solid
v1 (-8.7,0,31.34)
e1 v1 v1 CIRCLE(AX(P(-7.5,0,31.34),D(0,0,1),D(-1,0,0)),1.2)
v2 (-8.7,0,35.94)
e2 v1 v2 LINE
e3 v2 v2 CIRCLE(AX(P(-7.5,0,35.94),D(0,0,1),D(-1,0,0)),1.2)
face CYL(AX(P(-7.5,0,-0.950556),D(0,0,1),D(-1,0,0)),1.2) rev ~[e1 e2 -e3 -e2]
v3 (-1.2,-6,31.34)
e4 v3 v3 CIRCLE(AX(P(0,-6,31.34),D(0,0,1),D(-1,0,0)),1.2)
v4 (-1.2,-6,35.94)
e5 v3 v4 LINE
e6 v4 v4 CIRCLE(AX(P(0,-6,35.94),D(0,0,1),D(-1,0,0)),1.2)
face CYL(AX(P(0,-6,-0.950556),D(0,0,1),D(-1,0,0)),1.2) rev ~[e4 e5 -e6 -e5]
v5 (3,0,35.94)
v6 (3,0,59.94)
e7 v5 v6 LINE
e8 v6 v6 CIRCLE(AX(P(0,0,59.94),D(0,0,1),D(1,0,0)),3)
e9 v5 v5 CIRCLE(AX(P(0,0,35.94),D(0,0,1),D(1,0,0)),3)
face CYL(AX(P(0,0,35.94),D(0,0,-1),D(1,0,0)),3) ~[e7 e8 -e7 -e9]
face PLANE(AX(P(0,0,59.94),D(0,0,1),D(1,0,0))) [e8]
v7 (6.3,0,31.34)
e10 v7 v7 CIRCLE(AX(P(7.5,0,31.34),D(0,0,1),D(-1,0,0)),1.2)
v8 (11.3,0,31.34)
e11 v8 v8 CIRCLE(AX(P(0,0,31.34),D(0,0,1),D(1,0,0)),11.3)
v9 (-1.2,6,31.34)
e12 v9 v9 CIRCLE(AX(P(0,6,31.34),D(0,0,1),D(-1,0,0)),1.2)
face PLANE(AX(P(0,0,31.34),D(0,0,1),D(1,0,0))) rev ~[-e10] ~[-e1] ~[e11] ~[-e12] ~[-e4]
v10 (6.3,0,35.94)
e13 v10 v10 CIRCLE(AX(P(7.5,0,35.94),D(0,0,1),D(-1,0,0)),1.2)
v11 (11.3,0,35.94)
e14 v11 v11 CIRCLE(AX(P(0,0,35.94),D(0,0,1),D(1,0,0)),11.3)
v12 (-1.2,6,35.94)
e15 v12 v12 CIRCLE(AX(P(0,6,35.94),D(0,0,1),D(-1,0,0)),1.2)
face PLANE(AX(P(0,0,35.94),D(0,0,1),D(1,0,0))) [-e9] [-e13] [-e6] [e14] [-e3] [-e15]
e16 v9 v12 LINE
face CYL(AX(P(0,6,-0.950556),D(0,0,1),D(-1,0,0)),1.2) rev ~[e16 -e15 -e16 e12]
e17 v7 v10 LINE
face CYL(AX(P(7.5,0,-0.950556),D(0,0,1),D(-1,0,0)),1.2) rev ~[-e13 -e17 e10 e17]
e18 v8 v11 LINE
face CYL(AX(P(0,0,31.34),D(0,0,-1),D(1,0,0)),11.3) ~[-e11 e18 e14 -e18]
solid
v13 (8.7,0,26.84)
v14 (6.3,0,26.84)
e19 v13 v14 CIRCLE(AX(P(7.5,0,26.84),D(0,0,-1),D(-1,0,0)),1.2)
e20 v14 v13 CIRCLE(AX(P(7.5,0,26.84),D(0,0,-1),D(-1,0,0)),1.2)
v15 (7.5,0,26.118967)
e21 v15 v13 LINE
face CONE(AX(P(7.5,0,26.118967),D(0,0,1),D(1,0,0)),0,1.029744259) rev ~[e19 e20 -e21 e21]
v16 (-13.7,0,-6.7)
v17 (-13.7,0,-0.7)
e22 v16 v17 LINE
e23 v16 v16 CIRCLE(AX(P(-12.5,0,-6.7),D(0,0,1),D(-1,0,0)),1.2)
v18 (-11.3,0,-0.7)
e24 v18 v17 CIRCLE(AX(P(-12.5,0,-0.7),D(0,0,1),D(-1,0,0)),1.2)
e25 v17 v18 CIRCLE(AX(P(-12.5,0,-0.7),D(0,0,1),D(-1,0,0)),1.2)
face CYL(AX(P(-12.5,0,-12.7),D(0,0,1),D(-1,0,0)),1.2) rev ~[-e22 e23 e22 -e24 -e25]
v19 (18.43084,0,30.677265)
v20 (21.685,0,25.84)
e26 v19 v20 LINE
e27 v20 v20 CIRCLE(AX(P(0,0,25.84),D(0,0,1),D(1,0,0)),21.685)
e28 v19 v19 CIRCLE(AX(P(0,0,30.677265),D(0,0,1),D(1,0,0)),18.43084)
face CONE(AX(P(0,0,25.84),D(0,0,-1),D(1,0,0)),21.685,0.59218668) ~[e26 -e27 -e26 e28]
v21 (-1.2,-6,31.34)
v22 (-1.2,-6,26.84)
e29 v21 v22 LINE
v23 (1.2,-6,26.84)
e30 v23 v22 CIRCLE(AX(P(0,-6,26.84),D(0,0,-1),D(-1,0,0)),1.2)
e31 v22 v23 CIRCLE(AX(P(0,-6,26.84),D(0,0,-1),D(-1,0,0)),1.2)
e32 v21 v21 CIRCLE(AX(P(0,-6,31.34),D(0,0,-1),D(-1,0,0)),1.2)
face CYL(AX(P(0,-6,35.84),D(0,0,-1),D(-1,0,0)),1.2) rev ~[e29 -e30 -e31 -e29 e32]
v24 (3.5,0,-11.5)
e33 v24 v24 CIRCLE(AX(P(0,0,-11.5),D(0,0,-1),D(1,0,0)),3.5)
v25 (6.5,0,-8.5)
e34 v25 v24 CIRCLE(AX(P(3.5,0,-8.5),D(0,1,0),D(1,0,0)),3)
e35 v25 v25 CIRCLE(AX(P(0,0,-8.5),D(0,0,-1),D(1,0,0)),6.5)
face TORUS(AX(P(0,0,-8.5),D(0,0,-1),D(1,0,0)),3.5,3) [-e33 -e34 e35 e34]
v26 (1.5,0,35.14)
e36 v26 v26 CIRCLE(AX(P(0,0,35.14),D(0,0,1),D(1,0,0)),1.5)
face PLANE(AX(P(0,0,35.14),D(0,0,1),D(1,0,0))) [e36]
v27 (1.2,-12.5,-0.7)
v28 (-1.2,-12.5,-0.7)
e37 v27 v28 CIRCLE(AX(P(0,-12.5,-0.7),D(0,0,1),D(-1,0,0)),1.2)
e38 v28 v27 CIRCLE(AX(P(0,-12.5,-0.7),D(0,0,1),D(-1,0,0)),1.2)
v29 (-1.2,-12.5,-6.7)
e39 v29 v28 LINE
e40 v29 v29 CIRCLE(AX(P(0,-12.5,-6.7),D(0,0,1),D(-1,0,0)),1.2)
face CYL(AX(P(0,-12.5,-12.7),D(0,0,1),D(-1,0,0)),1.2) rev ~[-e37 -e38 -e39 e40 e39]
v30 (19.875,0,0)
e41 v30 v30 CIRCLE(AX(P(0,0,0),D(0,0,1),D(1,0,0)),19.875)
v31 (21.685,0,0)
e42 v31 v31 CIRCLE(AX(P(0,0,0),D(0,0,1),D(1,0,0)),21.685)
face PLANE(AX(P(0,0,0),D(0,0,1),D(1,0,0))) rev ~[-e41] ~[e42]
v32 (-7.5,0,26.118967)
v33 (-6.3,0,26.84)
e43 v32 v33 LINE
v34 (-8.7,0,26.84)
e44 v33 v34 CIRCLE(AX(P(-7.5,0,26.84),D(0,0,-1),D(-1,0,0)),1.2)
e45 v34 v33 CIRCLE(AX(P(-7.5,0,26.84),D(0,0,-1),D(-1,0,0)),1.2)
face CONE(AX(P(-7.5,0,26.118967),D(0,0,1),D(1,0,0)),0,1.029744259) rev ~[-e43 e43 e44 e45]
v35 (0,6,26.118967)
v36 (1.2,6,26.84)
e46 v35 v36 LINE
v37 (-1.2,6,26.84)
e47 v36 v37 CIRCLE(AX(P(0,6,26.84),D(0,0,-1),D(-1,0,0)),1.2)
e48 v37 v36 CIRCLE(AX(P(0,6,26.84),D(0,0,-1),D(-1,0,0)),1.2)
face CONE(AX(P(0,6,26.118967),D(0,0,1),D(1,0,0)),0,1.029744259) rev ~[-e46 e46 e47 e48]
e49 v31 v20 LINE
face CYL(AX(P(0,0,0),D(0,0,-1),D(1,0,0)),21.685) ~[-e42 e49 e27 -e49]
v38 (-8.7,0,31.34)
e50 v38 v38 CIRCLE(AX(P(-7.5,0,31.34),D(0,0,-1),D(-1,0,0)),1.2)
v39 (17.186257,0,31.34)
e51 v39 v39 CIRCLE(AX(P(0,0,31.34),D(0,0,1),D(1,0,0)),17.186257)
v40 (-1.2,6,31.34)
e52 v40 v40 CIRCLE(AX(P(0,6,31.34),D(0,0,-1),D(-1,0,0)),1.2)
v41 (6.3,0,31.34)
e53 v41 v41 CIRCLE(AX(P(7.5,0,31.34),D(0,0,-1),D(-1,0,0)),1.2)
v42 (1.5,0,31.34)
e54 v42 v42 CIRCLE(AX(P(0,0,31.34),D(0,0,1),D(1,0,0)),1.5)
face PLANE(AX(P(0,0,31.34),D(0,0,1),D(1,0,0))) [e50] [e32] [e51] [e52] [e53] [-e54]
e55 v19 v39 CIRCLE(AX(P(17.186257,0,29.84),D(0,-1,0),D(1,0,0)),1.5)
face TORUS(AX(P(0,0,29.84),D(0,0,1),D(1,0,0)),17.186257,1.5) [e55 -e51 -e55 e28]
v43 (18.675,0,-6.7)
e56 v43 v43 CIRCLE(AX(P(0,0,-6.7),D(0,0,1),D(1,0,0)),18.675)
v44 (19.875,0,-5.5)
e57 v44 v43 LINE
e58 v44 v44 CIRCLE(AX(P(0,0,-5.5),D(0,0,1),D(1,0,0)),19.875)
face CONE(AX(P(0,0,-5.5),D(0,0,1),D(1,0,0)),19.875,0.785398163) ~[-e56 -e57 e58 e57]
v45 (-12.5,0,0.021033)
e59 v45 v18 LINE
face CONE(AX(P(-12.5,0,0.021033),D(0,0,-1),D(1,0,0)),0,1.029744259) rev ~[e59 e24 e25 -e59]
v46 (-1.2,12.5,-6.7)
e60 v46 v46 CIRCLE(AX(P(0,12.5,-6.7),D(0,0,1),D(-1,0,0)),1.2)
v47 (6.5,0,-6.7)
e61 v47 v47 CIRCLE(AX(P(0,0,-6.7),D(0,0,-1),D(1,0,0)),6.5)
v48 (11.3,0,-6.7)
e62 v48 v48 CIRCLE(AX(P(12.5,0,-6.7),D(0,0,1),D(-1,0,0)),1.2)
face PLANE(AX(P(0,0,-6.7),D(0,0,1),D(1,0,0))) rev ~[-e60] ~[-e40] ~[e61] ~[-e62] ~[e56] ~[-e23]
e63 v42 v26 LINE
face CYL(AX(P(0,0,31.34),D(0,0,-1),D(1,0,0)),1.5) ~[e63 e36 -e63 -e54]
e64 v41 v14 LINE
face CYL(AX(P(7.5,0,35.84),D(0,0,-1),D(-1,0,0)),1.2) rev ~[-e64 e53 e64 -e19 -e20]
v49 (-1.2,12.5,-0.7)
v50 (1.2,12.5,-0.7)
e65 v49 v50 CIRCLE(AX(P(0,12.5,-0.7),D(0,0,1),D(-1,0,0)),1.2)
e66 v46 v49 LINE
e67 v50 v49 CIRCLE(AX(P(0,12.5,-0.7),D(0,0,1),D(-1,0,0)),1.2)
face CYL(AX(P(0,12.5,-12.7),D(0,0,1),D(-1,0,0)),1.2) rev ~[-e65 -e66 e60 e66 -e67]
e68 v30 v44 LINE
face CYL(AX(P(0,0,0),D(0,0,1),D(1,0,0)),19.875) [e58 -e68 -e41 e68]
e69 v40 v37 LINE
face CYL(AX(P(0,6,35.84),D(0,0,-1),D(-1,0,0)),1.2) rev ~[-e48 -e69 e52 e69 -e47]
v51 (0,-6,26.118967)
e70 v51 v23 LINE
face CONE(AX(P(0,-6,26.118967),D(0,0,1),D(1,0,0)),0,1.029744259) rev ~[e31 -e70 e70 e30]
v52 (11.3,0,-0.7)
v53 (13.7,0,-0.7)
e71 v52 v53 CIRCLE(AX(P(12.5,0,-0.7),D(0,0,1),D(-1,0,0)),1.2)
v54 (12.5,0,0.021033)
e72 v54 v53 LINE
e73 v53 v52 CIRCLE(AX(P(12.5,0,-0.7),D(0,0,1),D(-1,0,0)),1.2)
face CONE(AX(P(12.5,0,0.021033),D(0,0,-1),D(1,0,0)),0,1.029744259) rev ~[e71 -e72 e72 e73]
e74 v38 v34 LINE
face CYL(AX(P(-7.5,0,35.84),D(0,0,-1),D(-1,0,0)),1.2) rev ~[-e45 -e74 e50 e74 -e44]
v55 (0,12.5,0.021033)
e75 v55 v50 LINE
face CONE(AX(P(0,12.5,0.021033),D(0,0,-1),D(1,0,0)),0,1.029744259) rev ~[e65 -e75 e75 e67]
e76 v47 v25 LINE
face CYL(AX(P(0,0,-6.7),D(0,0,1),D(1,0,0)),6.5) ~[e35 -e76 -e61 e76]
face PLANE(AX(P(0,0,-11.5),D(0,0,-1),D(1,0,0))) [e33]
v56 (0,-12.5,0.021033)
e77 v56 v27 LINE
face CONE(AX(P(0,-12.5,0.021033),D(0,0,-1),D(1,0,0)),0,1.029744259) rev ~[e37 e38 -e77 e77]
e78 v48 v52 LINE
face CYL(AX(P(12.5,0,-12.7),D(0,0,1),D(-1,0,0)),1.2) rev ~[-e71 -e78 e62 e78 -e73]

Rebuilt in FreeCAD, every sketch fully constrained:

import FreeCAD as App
import Part
import Sketcher

V = App.Vector


def edges_at(feature, points):
    """Names of the edges that pass closest to the given points."""
    edges = feature.Shape.Edges
    near = lambda p: min(range(len(edges)), key=lambda i: edges[i].distToShape(Part.Vertex(*p))[0])
    return sorted({f"Edge{near(p) + 1}" for p in points})

doc = App.newDocument("Part")
params = doc.addObject("Spreadsheet::Sheet", "Params")
for row, (alias, value) in enumerate([
    ("sketch1_diameter", "43.37 mm"),
    ("pad1_length", "31.34 mm"),
    ("sketch2_diameter", "39.75 mm"),
    ("pad2_length", "6.7 mm"),
    ("chamfer_size", "3.7 mm"),
    ("chamfer_size2", "5.5 mm"),
    ("fillet_radius", "1.5 mm"),
    ("chamfer2_size", "1.2 mm"),
    ("sketch3_diameter", "3 mm"),
    ("pad3_length", "3.8 mm"),
    ("sketch4_diameter", "2.4 mm"),
    ("hole_diameter", "2.4 mm"),
    ("hole_depth", "6 mm"),
    ("sketch5_diameter", "13 mm"),
    ("pad4_length", "4.8 mm"),
    ("fillet2_radius", "3 mm"),
    ("sketch6_diameter", "2.4 mm"),
    ("hole2_diameter", "2.4 mm"),
    ("hole2_depth", "4.5 mm"),
    ("sketch7_diameter", "22.6 mm"),
    ("pad5_length", "4.6 mm"),
    ("sketch8_diameter", "2.4 mm"),
    ("hole3_diameter", "2.4 mm"),
    ("sketch9_diameter", "6 mm"),
    ("pad6_length", "24 mm"),
], start=1):
    params.set(f"A{row}", alias)
    params.set(f"B{row}", "=" + value)
    params.setAlias(f"B{row}", alias)

body = doc.addObject("PartDesign::Body", "Body")

# Sketch on XY plane
sketch1 = body.newObject("Sketcher::SketchObject", "Sketch")
sketch1.AttachmentSupport = (doc.getObject("XY_Plane"), [""])
sketch1.MapMode = "FlatFace"
sketch1.addGeometry(Part.Circle(V(0, 0, 0), V(0, 0, 1), 21.685), False)
sketch1.addConstraint([
    Sketcher.Constraint("Coincident", 0, 3, -1, 1),
    Sketcher.Constraint("Diameter", 0, 43.37),
])
sketch1.setExpression("Constraints[1]", "Params.sketch1_diameter")
pad1 = body.newObject("PartDesign::Pad", "Pad")
pad1.Profile = sketch1
pad1.setExpression("Length", "Params.pad1_length")

# Sketch on XY plane
sketch2 = body.newObject("Sketcher::SketchObject", "Sketch001")
sketch2.AttachmentSupport = (doc.getObject("XY_Plane"), [""])
sketch2.MapMode = "FlatFace"
sketch2.addGeometry(Part.Circle(V(0, 0, 0), V(0, 0, 1), 19.875), False)
sketch2.addConstraint([
    Sketcher.Constraint("Coincident", 0, 3, -1, 1),
    Sketcher.Constraint("Diameter", 0, 39.75),
])
sketch2.setExpression("Constraints[1]", "Params.sketch2_diameter")
pad2 = body.newObject("PartDesign::Pad", "Pad001")
pad2.Profile = sketch2
pad2.setExpression("Length", "Params.pad2_length")
pad2.Reversed = True
doc.recompute()

chamfer = body.newObject("PartDesign::Chamfer", "Chamfer")
chamfer.Base = (pad2, edges_at(pad2, [(-21.685, 0, 31.34)]))
chamfer.ChamferType = "Two distances"
chamfer.setExpression("Size", "Params.chamfer_size")
chamfer.setExpression("Size2", "Params.chamfer_size2")
chamfer.FlipDirection = True
doc.recompute()

fillet = body.newObject("PartDesign::Fillet", "Fillet")
fillet.Base = (chamfer, edges_at(chamfer, [(-17.985, 0, 31.34)]))
fillet.setExpression("Radius", "Params.fillet_radius")
doc.recompute()

chamfer2 = body.newObject("PartDesign::Chamfer", "Chamfer001")
chamfer2.Base = (fillet, edges_at(fillet, [(-19.875, 0, -6.7)]))
chamfer2.setExpression("Size", "Params.chamfer2_size")

# Sketch on XY plane
sketch3 = body.newObject("Sketcher::SketchObject", "Sketch002")
sketch3.AttachmentSupport = (doc.getObject("XY_Plane"), [""])
sketch3.MapMode = "FlatFace"
sketch3.AttachmentOffset = App.Placement(V(0, 0, 31.34), App.Rotation())
sketch3.addGeometry(Part.Circle(V(0, 0, 0), V(0, 0, 1), 1.5), False)
sketch3.addConstraint([
    Sketcher.Constraint("Coincident", 0, 3, -1, 1),
    Sketcher.Constraint("Diameter", 0, 3.0),
])
sketch3.setExpression("Constraints[1]", "Params.sketch3_diameter")
pad3 = body.newObject("PartDesign::Pad", "Pad002")
pad3.Profile = sketch3
pad3.setExpression("Length", "Params.pad3_length")

# Sketch on XY plane
sketch4 = body.newObject("Sketcher::SketchObject", "Sketch003")
sketch4.AttachmentSupport = (doc.getObject("XY_Plane"), [""])
sketch4.MapMode = "FlatFace"
sketch4.AttachmentOffset = App.Placement(V(0, 0, -6.7), App.Rotation())
sketch4.addGeometry([
    Part.Circle(V(0, -12.5, 0), V(0, 0, 1), 1.2),
    Part.Circle(V(-12.5, 0, 0), V(0, 0, 1), 1.2),
    Part.Circle(V(0, 12.5, 0), V(0, 0, 1), 1.2),
    Part.Circle(V(12.5, 0, 0), V(0, 0, 1), 1.2),
], False)
sketch4.addConstraint([
    Sketcher.Constraint("Equal", 0, 1),
    Sketcher.Constraint("Equal", 1, 2),
    Sketcher.Constraint("Equal", 2, 3),
    Sketcher.Constraint("Symmetric", 0, 3, 2, 3, -1, 1),
    Sketcher.Constraint("Symmetric", 1, 3, 3, 3, -1, 1),
    Sketcher.Constraint("PointOnObject", 0, 3, -2),
    Sketcher.Constraint("PointOnObject", 1, 3, -1),
    Sketcher.Constraint("Diameter", 0, 2.4),
    Sketcher.Constraint("DistanceY", 0, 3, 2, 3, 25.0),
    Sketcher.Constraint("DistanceX", 1, 3, 3, 3, 25.0),
])
sketch4.setExpression("Constraints[7]", "Params.sketch4_diameter")
doc.recompute()
hole = body.newObject("PartDesign::Hole", "Hole")
hole.Profile = sketch4
hole.ThreadType = "None"
hole.setExpression("Diameter", "Params.hole_diameter")
hole.DepthType = "Dimension"
hole.setExpression("Depth", "Params.hole_depth")
hole.DrillPoint = "Angled"
hole.DrillPointAngle = 118
hole.Reversed = True

# Sketch on XY plane
sketch5 = body.newObject("Sketcher::SketchObject", "Sketch004")
sketch5.AttachmentSupport = (doc.getObject("XY_Plane"), [""])
sketch5.MapMode = "FlatFace"
sketch5.AttachmentOffset = App.Placement(V(0, 0, -6.7), App.Rotation())
sketch5.addGeometry(Part.Circle(V(0, 0, 0), V(0, 0, 1), 6.5), False)
sketch5.addConstraint([
    Sketcher.Constraint("Coincident", 0, 3, -1, 1),
    Sketcher.Constraint("Diameter", 0, 13.0),
])
sketch5.setExpression("Constraints[1]", "Params.sketch5_diameter")
pad4 = body.newObject("PartDesign::Pad", "Pad003")
pad4.Profile = sketch5
pad4.setExpression("Length", "Params.pad4_length")
pad4.Reversed = True
doc.recompute()

fillet2 = body.newObject("PartDesign::Fillet", "Fillet001")
fillet2.Base = (pad4, edges_at(pad4, [(-6.5, 0, -11.5)]))
fillet2.setExpression("Radius", "Params.fillet2_radius")

# Sketch on XY plane
sketch6 = body.newObject("Sketcher::SketchObject", "Sketch005")
sketch6.AttachmentSupport = (doc.getObject("XY_Plane"), [""])
sketch6.MapMode = "FlatFace"
sketch6.AttachmentOffset = App.Placement(V(0, 0, 31.34), App.Rotation())
sketch6.addGeometry([
    Part.Circle(V(0, -6, 0), V(0, 0, 1), 1.2),
    Part.Circle(V(0, 6, 0), V(0, 0, 1), 1.2),
    Part.Circle(V(7.5, 0, 0), V(0, 0, 1), 1.2),
    Part.Circle(V(-7.5, 0, 0), V(0, 0, 1), 1.2),
], False)
sketch6.addConstraint([
    Sketcher.Constraint("Equal", 0, 1),
    Sketcher.Constraint("Equal", 1, 2),
    Sketcher.Constraint("Equal", 2, 3),
    Sketcher.Constraint("Symmetric", 0, 3, 1, 3, -1, 1),
    Sketcher.Constraint("Symmetric", 2, 3, 3, 3, -1, 1),
    Sketcher.Constraint("PointOnObject", 0, 3, -2),
    Sketcher.Constraint("PointOnObject", 2, 3, -1),
    Sketcher.Constraint("Diameter", 0, 2.4),
    Sketcher.Constraint("DistanceY", 0, 3, -1, 1, 6.0),
    Sketcher.Constraint("DistanceX", 3, 3, 2, 3, 15.0),
])
sketch6.setExpression("Constraints[7]", "Params.sketch6_diameter")
doc.recompute()
hole2 = body.newObject("PartDesign::Hole", "Hole001")
hole2.Profile = sketch6
hole2.ThreadType = "None"
hole2.setExpression("Diameter", "Params.hole2_diameter")
hole2.DepthType = "Dimension"
hole2.setExpression("Depth", "Params.hole2_depth")
hole2.DrillPoint = "Angled"
hole2.DrillPointAngle = 118
body2 = doc.addObject("PartDesign::Body", "Body001")

# Sketch on XY plane
sketch7 = body2.newObject("Sketcher::SketchObject", "Sketch006")
sketch7.AttachmentSupport = (doc.getObject("XY_Plane001"), [""])
sketch7.MapMode = "FlatFace"
sketch7.AttachmentOffset = App.Placement(V(0, 0, 31.34), App.Rotation())
sketch7.addGeometry(Part.Circle(V(0, 0, 0), V(0, 0, 1), 11.3), False)
sketch7.addConstraint([
    Sketcher.Constraint("Coincident", 0, 3, -1, 1),
    Sketcher.Constraint("Diameter", 0, 22.6),
])
sketch7.setExpression("Constraints[1]", "Params.sketch7_diameter")
pad5 = body2.newObject("PartDesign::Pad", "Pad004")
pad5.Profile = sketch7
pad5.setExpression("Length", "Params.pad5_length")

# Sketch on XY plane
sketch8 = body2.newObject("Sketcher::SketchObject", "Sketch007")
sketch8.AttachmentSupport = (doc.getObject("XY_Plane001"), [""])
sketch8.MapMode = "FlatFace"
sketch8.AttachmentOffset = App.Placement(V(0, 0, 31.34), App.Rotation())
sketch8.addGeometry([
    Part.Circle(V(0, -6, 0), V(0, 0, 1), 1.2),
    Part.Circle(V(-7.5, 0, 0), V(0, 0, 1), 1.2),
    Part.Circle(V(7.5, 0, 0), V(0, 0, 1), 1.2),
    Part.Circle(V(0, 6, 0), V(0, 0, 1), 1.2),
], False)
sketch8.addConstraint([
    Sketcher.Constraint("Equal", 0, 1),
    Sketcher.Constraint("Equal", 1, 2),
    Sketcher.Constraint("Equal", 2, 3),
    Sketcher.Constraint("Symmetric", 1, 3, 2, 3, -1, 1),
    Sketcher.Constraint("Symmetric", 0, 3, 3, 3, -1, 1),
    Sketcher.Constraint("PointOnObject", 0, 3, -2),
    Sketcher.Constraint("PointOnObject", 1, 3, -1),
    Sketcher.Constraint("Diameter", 0, 2.4),
    Sketcher.Constraint("DistanceY", 0, 3, -1, 1, 6.0),
    Sketcher.Constraint("DistanceX", 1, 3, 2, 3, 15.0),
])
sketch8.setExpression("Constraints[7]", "Params.sketch8_diameter")
doc.recompute()
hole3 = body2.newObject("PartDesign::Hole", "Hole002")
hole3.Profile = sketch8
hole3.ThreadType = "None"
hole3.setExpression("Diameter", "Params.hole3_diameter")
hole3.DepthType = "ThroughAll"
hole3.Reversed = True

# Sketch on XY plane
sketch9 = body2.newObject("Sketcher::SketchObject", "Sketch008")
sketch9.AttachmentSupport = (doc.getObject("XY_Plane001"), [""])
sketch9.MapMode = "FlatFace"
sketch9.AttachmentOffset = App.Placement(V(0, 0, 35.94), App.Rotation())
sketch9.addGeometry(Part.Circle(V(0, 0, 0), V(0, 0, 1), 3), False)
sketch9.addConstraint([
    Sketcher.Constraint("Coincident", 0, 3, -1, 1),
    Sketcher.Constraint("Diameter", 0, 6.0),
])
sketch9.setExpression("Constraints[1]", "Params.sketch9_diameter")
pad6 = body2.newObject("PartDesign::Pad", "Pad005")
pad6.Profile = sketch9
pad6.setExpression("Length", "Params.pad6_length")

doc.recompute()
